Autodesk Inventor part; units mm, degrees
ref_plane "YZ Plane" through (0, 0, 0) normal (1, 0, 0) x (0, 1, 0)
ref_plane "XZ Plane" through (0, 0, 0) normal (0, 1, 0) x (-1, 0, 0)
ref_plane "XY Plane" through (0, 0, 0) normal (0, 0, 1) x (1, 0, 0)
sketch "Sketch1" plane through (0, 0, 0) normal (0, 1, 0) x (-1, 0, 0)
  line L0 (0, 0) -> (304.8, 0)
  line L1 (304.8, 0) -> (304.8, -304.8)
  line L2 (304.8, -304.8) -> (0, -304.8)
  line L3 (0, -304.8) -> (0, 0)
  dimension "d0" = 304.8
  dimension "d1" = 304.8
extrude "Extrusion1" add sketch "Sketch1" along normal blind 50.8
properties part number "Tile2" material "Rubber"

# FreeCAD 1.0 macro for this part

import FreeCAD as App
import Part
import Sketcher
Q = App.Units.Quantity


def add_polygon(sketch, points):
    """Adds a closed chain of lines whose ends are joined by coincident constraints."""
    first, n = sketch.GeometryCount, len(points)
    for a, b in zip(points, points[1:] + points[:1]):
        sketch.addGeometry(Part.LineSegment(App.Vector(*a, 0), App.Vector(*b, 0)), False)
    for i in range(n):
        sketch.addConstraint(Sketcher.Constraint("Coincident", first + i, 2, first + (i + 1) % n, 1))

doc = App.newDocument("Part")
body = doc.addObject("PartDesign::Body", "Body")

# Sketch on XZ plane
sketch1 = body.newObject("Sketcher::SketchObject", "Sketch")
sketch1.AttachmentSupport = (doc.getObject("XZ_Plane"), [""])
sketch1.MapMode = "FlatFace"
add_polygon(sketch1, [(-305, 0), (0, 0), (0, -305), (-305, -305)])  # lines 0-3
sketch1.addConstraint([
    Sketcher.Constraint("Horizontal", 0),
    Sketcher.Constraint("Vertical", 1),
    Sketcher.Constraint("Horizontal", 2),
    Sketcher.Constraint("Vertical", 3),
    Sketcher.Constraint("Coincident", 0, 2, -1, 1),
    Sketcher.Constraint("Equal", 2, 1),
    Sketcher.Constraint("DistanceX", 0, 1, 0, 2, Q("12 in")),
])
pad1 = body.newObject("PartDesign::Pad", "Pad")
pad1.Profile = sketch1
pad1.Length = Q("2 in")
pad1.Reversed = True

doc.recompute()
